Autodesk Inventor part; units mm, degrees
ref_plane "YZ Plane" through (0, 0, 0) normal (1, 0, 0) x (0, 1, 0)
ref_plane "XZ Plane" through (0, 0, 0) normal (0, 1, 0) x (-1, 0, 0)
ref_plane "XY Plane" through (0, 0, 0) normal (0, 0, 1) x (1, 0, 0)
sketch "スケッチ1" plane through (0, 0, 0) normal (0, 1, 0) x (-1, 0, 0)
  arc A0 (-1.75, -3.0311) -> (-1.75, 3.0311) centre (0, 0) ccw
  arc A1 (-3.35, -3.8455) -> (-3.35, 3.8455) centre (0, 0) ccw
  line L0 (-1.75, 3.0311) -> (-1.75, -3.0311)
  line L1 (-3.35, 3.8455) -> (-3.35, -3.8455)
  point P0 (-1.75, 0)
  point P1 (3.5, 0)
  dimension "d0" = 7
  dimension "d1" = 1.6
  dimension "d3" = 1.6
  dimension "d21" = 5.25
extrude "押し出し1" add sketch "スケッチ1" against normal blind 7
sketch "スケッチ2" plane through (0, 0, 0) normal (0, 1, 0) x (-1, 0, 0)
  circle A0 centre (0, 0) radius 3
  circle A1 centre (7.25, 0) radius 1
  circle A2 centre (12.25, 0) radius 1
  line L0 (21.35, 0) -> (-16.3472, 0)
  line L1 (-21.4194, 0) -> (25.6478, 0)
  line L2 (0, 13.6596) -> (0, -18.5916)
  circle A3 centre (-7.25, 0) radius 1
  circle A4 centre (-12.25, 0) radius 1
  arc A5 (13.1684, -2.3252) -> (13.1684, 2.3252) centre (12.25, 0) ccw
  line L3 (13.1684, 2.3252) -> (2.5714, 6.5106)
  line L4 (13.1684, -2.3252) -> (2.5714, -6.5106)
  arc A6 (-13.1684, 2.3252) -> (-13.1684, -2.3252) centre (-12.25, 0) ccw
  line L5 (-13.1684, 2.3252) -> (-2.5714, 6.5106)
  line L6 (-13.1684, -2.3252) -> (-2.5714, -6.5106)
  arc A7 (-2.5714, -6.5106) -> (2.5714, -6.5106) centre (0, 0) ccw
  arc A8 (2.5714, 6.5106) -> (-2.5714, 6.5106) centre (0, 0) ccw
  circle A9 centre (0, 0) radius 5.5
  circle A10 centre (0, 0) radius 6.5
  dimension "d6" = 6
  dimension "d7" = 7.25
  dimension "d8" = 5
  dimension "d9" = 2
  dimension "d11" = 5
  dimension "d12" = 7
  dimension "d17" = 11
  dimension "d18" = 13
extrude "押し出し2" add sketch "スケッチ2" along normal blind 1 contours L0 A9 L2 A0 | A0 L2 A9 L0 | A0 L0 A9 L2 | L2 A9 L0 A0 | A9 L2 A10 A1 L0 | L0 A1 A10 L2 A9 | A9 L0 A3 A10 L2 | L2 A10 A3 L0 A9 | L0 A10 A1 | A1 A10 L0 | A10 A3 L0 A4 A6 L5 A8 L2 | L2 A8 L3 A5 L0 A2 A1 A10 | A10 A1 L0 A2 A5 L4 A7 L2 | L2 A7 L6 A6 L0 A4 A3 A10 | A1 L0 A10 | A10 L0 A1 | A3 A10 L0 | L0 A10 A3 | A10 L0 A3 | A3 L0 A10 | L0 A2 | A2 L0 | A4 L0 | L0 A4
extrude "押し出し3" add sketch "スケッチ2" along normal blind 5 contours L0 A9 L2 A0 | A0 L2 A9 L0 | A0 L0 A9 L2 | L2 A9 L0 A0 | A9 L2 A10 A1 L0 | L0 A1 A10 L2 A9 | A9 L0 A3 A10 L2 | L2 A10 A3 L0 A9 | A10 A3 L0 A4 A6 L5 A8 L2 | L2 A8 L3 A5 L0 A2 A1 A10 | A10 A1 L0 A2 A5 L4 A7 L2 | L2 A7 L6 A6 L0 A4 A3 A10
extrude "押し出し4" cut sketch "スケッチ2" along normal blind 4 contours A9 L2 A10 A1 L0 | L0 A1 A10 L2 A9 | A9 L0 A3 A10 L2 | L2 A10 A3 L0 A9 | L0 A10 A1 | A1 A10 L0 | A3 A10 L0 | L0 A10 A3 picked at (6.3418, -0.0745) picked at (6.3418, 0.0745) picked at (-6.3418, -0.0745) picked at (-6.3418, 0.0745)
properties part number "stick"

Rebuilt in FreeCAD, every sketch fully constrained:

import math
import FreeCAD as App
import Part
import Sketcher
from FreeCAD import Vector

doc = App.newDocument("Part")
body = doc.addObject("PartDesign::Body", "Body")

sketch1 = body.newObject("Sketcher::SketchObject", "Sketch")
sketch1.AttachmentSupport = (doc.getObject("XZ_Plane"), [""])
sketch1.MapMode = "FlatFace"
sketch1.addGeometry([
    Part.LineSegment(Vector(3.35, 3.8455, 0), Vector(3.35, -3.8455, 0)),
    Part.ArcOfCircle(Part.Circle(Vector(0, 0, 0), Vector(0, 0, 1), 5.100036), math.radians(48.939311), math.radians(311.060689)),
    Part.ArcOfCircle(Part.Circle(Vector(0, 0, 0), Vector(0, 0, 1), 3.50001), math.radians(60.000091), math.radians(299.999909)),
    Part.LineSegment(Vector(1.75, -3.0311, 0), Vector(1.75, 3.0311, 0)),
], False)
sketch1.addConstraint([
    Sketcher.Constraint("Coincident", 0, 1, 1, 1),
    Sketcher.Constraint("Coincident", 1, 2, 0, 2),
    Sketcher.Constraint("Coincident", 2, 1, 3, 2),
    Sketcher.Constraint("Coincident", 3, 1, 2, 2),
    Sketcher.Constraint("Vertical", 0),
    Sketcher.Constraint("Vertical", 3),
    Sketcher.Constraint("Coincident", 1, 3, -1, 1),
    Sketcher.Constraint("Coincident", 2, 3, -1, 1),
    Sketcher.Constraint("Radius", 2, 3.5),
    Sketcher.Constraint("Radius", 1, 5.1),
    Sketcher.Constraint("DistanceX", 2, 1, 0, 1, 1.6),
    Sketcher.Constraint("DistanceY", 0, 2, 0, 1, 7.691),
])
pad1 = body.newObject("PartDesign::Pad", "Pad")
pad1.Profile = sketch1
pad1.Length = 7

sketch2 = body.newObject("Sketcher::SketchObject", "Sketch001")
sketch2.AttachmentSupport = (doc.getObject("XZ_Plane"), [""])
sketch2.MapMode = "FlatFace"
sketch2.addGeometry([
    Part.ArcOfCircle(Part.Circle(Vector(-12.25, 0, 0), Vector(0, 0, 1), 2.500003), math.radians(111.552869), math.radians(248.447131)),
    Part.LineSegment(Vector(-13.1684, 2.3252, 0), Vector(-2.5714, 6.5106, 0)),
    Part.ArcOfCircle(Part.Circle(Vector(0, 0, 0), Vector(0, 0, 1), 7.000001), math.radians(68.448165), math.radians(111.551835)),
    Part.LineSegment(Vector(2.5714, 6.5106, 0), Vector(13.1684, 2.3252, 0)),
    Part.ArcOfCircle(Part.Circle(Vector(12.25, 0, 0), Vector(0, 0, 1), 2.500003), math.radians(-68.447131), math.radians(68.447131)),
    Part.LineSegment(Vector(13.1684, -2.3252, 0), Vector(2.5714, -6.5106, 0)),
    Part.ArcOfCircle(Part.Circle(Vector(0, 0, 0), Vector(0, 0, 1), 7.000001), math.radians(-111.551835), math.radians(-68.448165)),
    Part.LineSegment(Vector(-2.5714, -6.5106, 0), Vector(-13.1684, -2.3252, 0)),
    Part.Circle(Vector(0, 0, 0), Vector(0, 0, 1), 3),
], False)
sketch2.addConstraint([
    Sketcher.Constraint("Tangent", 0, 1, 1, 1),
    Sketcher.Constraint("Tangent", 1, 2, 2, 2),
    Sketcher.Constraint("Tangent", 2, 1, 3, 1),
    Sketcher.Constraint("Tangent", 3, 2, 4, 2),
    Sketcher.Constraint("Tangent", 4, 1, 5, 1),
    Sketcher.Constraint("Tangent", 5, 2, 6, 2),
    Sketcher.Constraint("Tangent", 6, 1, 7, 1),
    Sketcher.Constraint("Tangent", 7, 2, 0, 2),
    Sketcher.Constraint("Coincident", 2, 3, -1, 1),
    Sketcher.Constraint("Coincident", 6, 3, -1, 1),
    Sketcher.Constraint("Coincident", 8, 3, -1, 1),
    Sketcher.Constraint("Equal", 0, 4),
    Sketcher.Constraint("Equal", 2, 6),
    Sketcher.Constraint("Symmetric", 0, 3, 4, 3, -1, 1),
    Sketcher.Constraint("PointOnObject", 0, 3, -1),
    Sketcher.Constraint("Diameter", 8, 6.0),
    Sketcher.Constraint("Radius", 2, 7.0),
    Sketcher.Constraint("Radius", 0, 2.5),
    Sketcher.Constraint("DistanceX", 0, 3, 4, 3, 24.5),
])
pad2 = body.newObject("PartDesign::Pad", "Pad001")
pad2.Profile = sketch2
pad2.Length = 1
pad2.Reversed = True

sketch3 = body.newObject("Sketcher::SketchObject", "Sketch002")
sketch3.AttachmentSupport = (doc.getObject("XZ_Plane"), [""])
sketch3.MapMode = "FlatFace"
sketch3.addGeometry([
    Part.ArcOfCircle(Part.Circle(Vector(-12.25, 0, 0), Vector(0, 0, 1), 2.500003), math.radians(111.552869), math.radians(248.447131)),
    Part.LineSegment(Vector(-13.1684, 2.3252, 0), Vector(-2.5714, 6.5106, 0)),
    Part.ArcOfCircle(Part.Circle(Vector(0, 0, 0), Vector(0, 0, 1), 7.000001), math.radians(68.448165), math.radians(111.551835)),
    Part.LineSegment(Vector(2.5714, 6.5106, 0), Vector(13.1684, 2.3252, 0)),
    Part.ArcOfCircle(Part.Circle(Vector(12.25, 0, 0), Vector(0, 0, 1), 2.500003), math.radians(-68.447131), math.radians(68.447131)),
    Part.LineSegment(Vector(13.1684, -2.3252, 0), Vector(2.5714, -6.5106, 0)),
    Part.ArcOfCircle(Part.Circle(Vector(0, 0, 0), Vector(0, 0, 1), 7.000001), math.radians(-111.551835), math.radians(-68.448165)),
    Part.LineSegment(Vector(-2.5714, -6.5106, 0), Vector(-13.1684, -2.3252, 0)),
    Part.Circle(Vector(0, 0, 0), Vector(0, 0, 1), 3),
    Part.Circle(Vector(-7.25, 0, 0), Vector(0, 0, 1), 1),
    Part.Circle(Vector(-12.25, 0, 0), Vector(0, 0, 1), 1),
    Part.Circle(Vector(7.25, 0, 0), Vector(0, 0, 1), 1),
    Part.Circle(Vector(12.25, 0, 0), Vector(0, 0, 1), 1),
], False)
sketch3.addConstraint([
    Sketcher.Constraint("Tangent", 0, 1, 1, 1),
    Sketcher.Constraint("Tangent", 1, 2, 2, 2),
    Sketcher.Constraint("Tangent", 2, 1, 3, 1),
    Sketcher.Constraint("Tangent", 3, 2, 4, 2),
    Sketcher.Constraint("Tangent", 4, 1, 5, 1),
    Sketcher.Constraint("Tangent", 5, 2, 6, 2),
    Sketcher.Constraint("Tangent", 6, 1, 7, 1),
    Sketcher.Constraint("Tangent", 7, 2, 0, 2),
    Sketcher.Constraint("Coincident", 2, 3, -1, 1),
    Sketcher.Constraint("Coincident", 6, 3, -1, 1),
    Sketcher.Constraint("Coincident", 8, 3, -1, 1),
    Sketcher.Constraint("Coincident", 10, 3, 0, 3),
    Sketcher.Constraint("Coincident", 12, 3, 4, 3),
    Sketcher.Constraint("Equal", 0, 4),
    Sketcher.Constraint("Equal", 2, 6),
    Sketcher.Constraint("Equal", 9, 10),
    Sketcher.Constraint("Equal", 10, 11),
    Sketcher.Constraint("Equal", 11, 12),
    Sketcher.Constraint("Symmetric", 0, 3, 4, 3, -1, 1),
    Sketcher.Constraint("Symmetric", 9, 3, 11, 3, -1, 1),
    Sketcher.Constraint("PointOnObject", 0, 3, -1),
    Sketcher.Constraint("PointOnObject", 9, 3, -1),
    Sketcher.Constraint("Diameter", 8, 6.0),
    Sketcher.Constraint("Diameter", 9, 2.0),
    Sketcher.Constraint("Radius", 2, 7.0),
    Sketcher.Constraint("Radius", 0, 2.5),
    Sketcher.Constraint("DistanceX", 0, 3, 9, 3, 5.0),
    Sketcher.Constraint("DistanceX", 9, 3, -1, 1, 7.25),
])
pad3 = body.newObject("PartDesign::Pad", "Pad002")
pad3.Profile = sketch3
pad3.Length = 5
pad3.Reversed = True

sketch4 = body.newObject("Sketcher::SketchObject", "Sketch003")
sketch4.AttachmentSupport = (doc.getObject("XZ_Plane"), [""])
sketch4.MapMode = "FlatFace"
sketch4.addGeometry([
    Part.Circle(Vector(0, 0, 0), Vector(0, 0, 1), 6.5),
    Part.Circle(Vector(0, 0, 0), Vector(0, 0, 1), 5.5),
], False)
sketch4.addConstraint([
    Sketcher.Constraint("Coincident", 0, 3, -1, 1),
    Sketcher.Constraint("Coincident", 1, 3, -1, 1),
    Sketcher.Constraint("Diameter", 0, 13.0),
    Sketcher.Constraint("Diameter", 1, 11.0),
])
pocket1 = body.newObject("PartDesign::Pocket", "Pocket")
pocket1.Profile = sketch4
pocket1.Length = 4

doc.recompute()
